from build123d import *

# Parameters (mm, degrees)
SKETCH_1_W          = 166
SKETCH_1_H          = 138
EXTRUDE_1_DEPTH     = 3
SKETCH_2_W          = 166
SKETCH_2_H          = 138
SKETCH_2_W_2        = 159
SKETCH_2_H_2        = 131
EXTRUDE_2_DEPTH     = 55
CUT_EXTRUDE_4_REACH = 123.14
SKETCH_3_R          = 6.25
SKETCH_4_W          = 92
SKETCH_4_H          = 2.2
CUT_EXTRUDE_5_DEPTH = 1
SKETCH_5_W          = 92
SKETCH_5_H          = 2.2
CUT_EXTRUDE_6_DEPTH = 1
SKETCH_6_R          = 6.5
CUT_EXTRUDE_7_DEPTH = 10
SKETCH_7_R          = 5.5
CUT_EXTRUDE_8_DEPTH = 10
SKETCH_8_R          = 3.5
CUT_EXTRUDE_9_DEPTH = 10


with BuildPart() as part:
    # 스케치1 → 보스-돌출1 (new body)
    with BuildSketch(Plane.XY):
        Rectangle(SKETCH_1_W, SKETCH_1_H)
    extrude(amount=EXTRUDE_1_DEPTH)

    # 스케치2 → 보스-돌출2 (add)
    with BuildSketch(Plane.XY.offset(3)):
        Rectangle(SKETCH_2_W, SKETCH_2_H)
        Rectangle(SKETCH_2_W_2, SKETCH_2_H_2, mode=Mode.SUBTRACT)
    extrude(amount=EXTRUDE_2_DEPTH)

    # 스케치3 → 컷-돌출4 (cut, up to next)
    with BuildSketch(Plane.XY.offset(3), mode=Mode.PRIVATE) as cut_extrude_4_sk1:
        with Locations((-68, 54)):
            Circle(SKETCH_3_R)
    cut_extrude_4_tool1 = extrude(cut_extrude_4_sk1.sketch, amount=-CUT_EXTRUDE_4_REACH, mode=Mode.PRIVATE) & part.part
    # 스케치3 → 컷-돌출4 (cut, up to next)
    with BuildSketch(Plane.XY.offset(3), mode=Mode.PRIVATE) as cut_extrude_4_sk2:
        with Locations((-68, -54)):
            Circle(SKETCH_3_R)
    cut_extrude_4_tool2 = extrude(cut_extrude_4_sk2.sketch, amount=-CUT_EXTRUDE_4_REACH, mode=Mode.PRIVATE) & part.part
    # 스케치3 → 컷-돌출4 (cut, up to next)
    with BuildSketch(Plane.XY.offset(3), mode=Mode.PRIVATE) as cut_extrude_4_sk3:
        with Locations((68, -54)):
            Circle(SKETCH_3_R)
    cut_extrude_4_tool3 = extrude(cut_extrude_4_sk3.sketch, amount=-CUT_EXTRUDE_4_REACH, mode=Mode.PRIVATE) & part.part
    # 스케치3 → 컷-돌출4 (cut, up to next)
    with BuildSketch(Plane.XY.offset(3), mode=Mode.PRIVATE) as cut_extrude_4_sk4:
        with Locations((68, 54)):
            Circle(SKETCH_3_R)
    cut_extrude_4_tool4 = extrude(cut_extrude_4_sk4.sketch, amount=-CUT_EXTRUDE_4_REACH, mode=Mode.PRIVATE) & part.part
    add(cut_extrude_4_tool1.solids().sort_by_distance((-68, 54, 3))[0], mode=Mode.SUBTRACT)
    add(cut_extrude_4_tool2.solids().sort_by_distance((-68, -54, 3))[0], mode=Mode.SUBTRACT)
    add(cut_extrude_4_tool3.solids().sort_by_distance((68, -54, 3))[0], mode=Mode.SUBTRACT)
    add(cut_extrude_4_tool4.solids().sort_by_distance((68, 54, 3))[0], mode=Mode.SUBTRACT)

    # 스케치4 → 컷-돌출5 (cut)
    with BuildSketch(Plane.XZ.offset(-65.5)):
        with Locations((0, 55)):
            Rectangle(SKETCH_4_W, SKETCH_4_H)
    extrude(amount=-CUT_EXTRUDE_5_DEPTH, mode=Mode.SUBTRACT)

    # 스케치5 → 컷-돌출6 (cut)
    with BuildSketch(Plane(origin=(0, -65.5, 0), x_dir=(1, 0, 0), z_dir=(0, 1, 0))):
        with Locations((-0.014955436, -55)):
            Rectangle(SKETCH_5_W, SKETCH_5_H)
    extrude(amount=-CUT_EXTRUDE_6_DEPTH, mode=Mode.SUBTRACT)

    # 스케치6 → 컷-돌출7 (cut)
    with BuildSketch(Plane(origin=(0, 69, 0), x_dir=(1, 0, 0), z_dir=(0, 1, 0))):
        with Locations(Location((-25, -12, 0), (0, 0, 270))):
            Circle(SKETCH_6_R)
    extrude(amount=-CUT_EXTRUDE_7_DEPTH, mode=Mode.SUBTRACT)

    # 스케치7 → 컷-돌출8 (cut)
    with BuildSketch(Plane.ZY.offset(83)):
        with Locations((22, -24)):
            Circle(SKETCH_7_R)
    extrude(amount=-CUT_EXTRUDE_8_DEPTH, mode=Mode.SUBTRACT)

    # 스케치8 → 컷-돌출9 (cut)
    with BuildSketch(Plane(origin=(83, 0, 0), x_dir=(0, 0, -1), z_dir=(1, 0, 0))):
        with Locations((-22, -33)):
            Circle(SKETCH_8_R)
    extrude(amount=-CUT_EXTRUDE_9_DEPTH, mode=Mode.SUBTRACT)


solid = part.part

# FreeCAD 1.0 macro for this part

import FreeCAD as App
import Part
import Sketcher

V = App.Vector


def add_polygon(sketch, points):
    """Adds a closed chain of lines whose ends are joined by coincident constraints."""
    first, n = sketch.GeometryCount, len(points)
    for a, b in zip(points, points[1:] + points[:1]):
        sketch.addGeometry(Part.LineSegment(App.Vector(*a, 0), App.Vector(*b, 0)), False)
    for i in range(n):
        sketch.addConstraint(Sketcher.Constraint("Coincident", first + i, 2, first + (i + 1) % n, 1))

doc = App.newDocument("Part")
params = doc.addObject("Spreadsheet::Sheet", "Params")
for row, (alias, value) in enumerate([
    ("sketch1_width", "166 mm"),
    ("sketch1_height", "138 mm"),
    ("pad1_length", "3 mm"),
    ("sketch2_width", "166 mm"),
    ("sketch2_width2", "159 mm"),
    ("sketch2_height", "138 mm"),
    ("sketch2_height2", "131 mm"),
    ("pad2_length", "55 mm"),
    ("sketch3_diameter", "12.5 mm"),
    ("sketch4_diameter", "12.5 mm"),
    ("sketch5_diameter", "12.5 mm"),
    ("sketch6_diameter", "12.5 mm"),
    ("sketch7_width", "92 mm"),
    ("sketch7_height", "2.2 mm"),
    ("pocket5_length", "1 mm"),
    ("sketch8_width", "92 mm"),
    ("sketch8_height", "2.2 mm"),
    ("pocket6_length", "1 mm"),
    ("sketch9_diameter", "13 mm"),
    ("pocket7_length", "10 mm"),
    ("sketch10_diameter", "11 mm"),
    ("pocket8_length", "10 mm"),
    ("sketch11_diameter", "7 mm"),
    ("pocket9_length", "10 mm"),
], start=1):
    params.set(f"A{row}", alias)
    params.set(f"B{row}", "=" + value)
    params.setAlias(f"B{row}", alias)

body = doc.addObject("PartDesign::Body", "Body")

sketch1 = doc.addObject("Sketcher::SketchObject", "Sketch")
body.addObject(sketch1)
sketch1.AttachmentSupport = (doc.XY_Plane, [""])
sketch1.MapMode = "FlatFace"
add_polygon(sketch1, [(-83, 69), (-83, -69), (83, -69), (83, 69)])
sketch1.addConstraint(Sketcher.Constraint("Vertical", 0))
sketch1.addConstraint(Sketcher.Constraint("Horizontal", 1))
sketch1.addConstraint(Sketcher.Constraint("Vertical", 2))
sketch1.addConstraint(Sketcher.Constraint("Horizontal", 3))
sketch1.addConstraint(Sketcher.Constraint("Symmetric", 0, 2, 2, 2, -1, 1))
sketch1.addConstraint(Sketcher.Constraint("DistanceX", 1, 1, 1, 2, 166.0))
sketch1.addConstraint(Sketcher.Constraint("DistanceY", 0, 2, 0, 1, 138.0))
sketch1.setExpression("Constraints[9]", "Params.sketch1_width")
sketch1.setExpression("Constraints[10]", "Params.sketch1_height")
pad1 = doc.addObject("PartDesign::Pad", "Pad")
body.addObject(pad1)
pad1.Profile = sketch1
pad1.setExpression("Length", "Params.pad1_length")

sketch2 = doc.addObject("Sketcher::SketchObject", "Sketch001")
body.addObject(sketch2)
sketch2.AttachmentSupport = (doc.XY_Plane, [""])
sketch2.MapMode = "FlatFace"
sketch2.AttachmentOffset = App.Placement(V(0, 0, 3), App.Rotation())
add_polygon(sketch2, [(-83, 69), (-83, -69), (83, -69), (83, 69)])
add_polygon(sketch2, [(80, -66), (-80, -66), (-80, 66), (80, 66)])
sketch2.addConstraint(Sketcher.Constraint("Vertical", 0))
sketch2.addConstraint(Sketcher.Constraint("Horizontal", 1))
sketch2.addConstraint(Sketcher.Constraint("Vertical", 2))
sketch2.addConstraint(Sketcher.Constraint("Horizontal", 3))
sketch2.addConstraint(Sketcher.Constraint("Horizontal", 4))
sketch2.addConstraint(Sketcher.Constraint("Vertical", 5))
sketch2.addConstraint(Sketcher.Constraint("Horizontal", 6))
sketch2.addConstraint(Sketcher.Constraint("Vertical", 7))
sketch2.addConstraint(Sketcher.Constraint("Symmetric", 0, 2, 2, 2, -1, 1))
sketch2.addConstraint(Sketcher.Constraint("Symmetric", 4, 2, 6, 2, -1, 1))
sketch2.addConstraint(Sketcher.Constraint("DistanceX", 1, 1, 1, 2, 166.0))
sketch2.addConstraint(Sketcher.Constraint("DistanceX", 4, 2, 4, 1, 159.0))
sketch2.addConstraint(Sketcher.Constraint("DistanceY", 0, 2, 0, 1, 138.0))
sketch2.addConstraint(Sketcher.Constraint("DistanceY", 5, 1, 5, 2, 131.0))
sketch2.setExpression("Constraints[18]", "Params.sketch2_width")
sketch2.setExpression("Constraints[19]", "Params.sketch2_width2")
sketch2.setExpression("Constraints[20]", "Params.sketch2_height")
sketch2.setExpression("Constraints[21]", "Params.sketch2_height2")
pad2 = doc.addObject("PartDesign::Pad", "Pad001")
body.addObject(pad2)
pad2.Profile = sketch2
pad2.setExpression("Length", "Params.pad2_length")

sketch3 = doc.addObject("Sketcher::SketchObject", "Sketch002")
body.addObject(sketch3)
sketch3.AttachmentSupport = (doc.XY_Plane, [""])
sketch3.MapMode = "FlatFace"
sketch3.AttachmentOffset = App.Placement(V(0, 0, 3), App.Rotation())
sketch3.addGeometry(Part.Circle(V(-68, 54, 0), V(0, 0, 1), 6), False)
sketch3.addConstraint(Sketcher.Constraint("Diameter", 0, 12.5))
sketch3.addConstraint(Sketcher.Constraint("DistanceX", 0, 3, -1, 1, 68.0))
sketch3.addConstraint(Sketcher.Constraint("DistanceY", -1, 1, 0, 3, 54.0))
sketch3.setExpression("Constraints[0]", "Params.sketch3_diameter")
pocket1 = doc.addObject("PartDesign::Pocket", "Pocket")
body.addObject(pocket1)
pocket1.Profile = sketch3
pocket1.Type = "UpToFirst"

sketch4 = doc.addObject("Sketcher::SketchObject", "Sketch003")
body.addObject(sketch4)
sketch4.AttachmentSupport = (doc.XY_Plane, [""])
sketch4.MapMode = "FlatFace"
sketch4.AttachmentOffset = App.Placement(V(0, 0, 3), App.Rotation())
sketch4.addGeometry(Part.Circle(V(-68, -54, 0), V(0, 0, 1), 6), False)
sketch4.addConstraint(Sketcher.Constraint("Diameter", 0, 12.5))
sketch4.addConstraint(Sketcher.Constraint("DistanceX", 0, 3, -1, 1, 68.0))
sketch4.addConstraint(Sketcher.Constraint("DistanceY", 0, 3, -1, 1, 54.0))
sketch4.setExpression("Constraints[0]", "Params.sketch4_diameter")
pocket2 = doc.addObject("PartDesign::Pocket", "Pocket001")
body.addObject(pocket2)
pocket2.Profile = sketch4
pocket2.Type = "UpToFirst"

sketch5 = doc.addObject("Sketcher::SketchObject", "Sketch004")
body.addObject(sketch5)
sketch5.AttachmentSupport = (doc.XY_Plane, [""])
sketch5.MapMode = "FlatFace"
sketch5.AttachmentOffset = App.Placement(V(0, 0, 3), App.Rotation())
sketch5.addGeometry(Part.Circle(V(68, -54, 0), V(0, 0, 1), 6), False)
sketch5.addConstraint(Sketcher.Constraint("Diameter", 0, 12.5))
sketch5.addConstraint(Sketcher.Constraint("DistanceX", -1, 1, 0, 3, 68.0))
sketch5.addConstraint(Sketcher.Constraint("DistanceY", 0, 3, -1, 1, 54.0))
sketch5.setExpression("Constraints[0]", "Params.sketch5_diameter")
pocket3 = doc.addObject("PartDesign::Pocket", "Pocket002")
body.addObject(pocket3)
pocket3.Profile = sketch5
pocket3.Type = "UpToFirst"

sketch6 = doc.addObject("Sketcher::SketchObject", "Sketch005")
body.addObject(sketch6)
sketch6.AttachmentSupport = (doc.XY_Plane, [""])
sketch6.MapMode = "FlatFace"
sketch6.AttachmentOffset = App.Placement(V(0, 0, 3), App.Rotation())
sketch6.addGeometry(Part.Circle(V(68, 54, 0), V(0, 0, 1), 6), False)
sketch6.addConstraint(Sketcher.Constraint("Diameter", 0, 12.5))
sketch6.addConstraint(Sketcher.Constraint("DistanceX", -1, 1, 0, 3, 68.0))
sketch6.addConstraint(Sketcher.Constraint("DistanceY", -1, 1, 0, 3, 54.0))
sketch6.setExpression("Constraints[0]", "Params.sketch6_diameter")
pocket4 = doc.addObject("PartDesign::Pocket", "Pocket003")
body.addObject(pocket4)
pocket4.Profile = sketch6
pocket4.Type = "UpToFirst"

sketch7 = doc.addObject("Sketcher::SketchObject", "Sketch006")
body.addObject(sketch7)
sketch7.AttachmentSupport = (doc.XZ_Plane, [""])
sketch7.MapMode = "FlatFace"
sketch7.AttachmentOffset = App.Placement(V(0, 0, -65.5), App.Rotation())
add_polygon(sketch7, [(-46, 56.1), (-46, 53.9), (46, 53.9), (46, 56.1)])
sketch7.addConstraint(Sketcher.Constraint("Vertical", 0))
sketch7.addConstraint(Sketcher.Constraint("Horizontal", 1))
sketch7.addConstraint(Sketcher.Constraint("Vertical", 2))
sketch7.addConstraint(Sketcher.Constraint("Horizontal", 3))
sketch7.addConstraint(Sketcher.Constraint("DistanceX", 1, 1, 1, 2, 92.0))
sketch7.addConstraint(Sketcher.Constraint("DistanceY", 0, 2, 0, 1, 2.2))
sketch7.addConstraint(Sketcher.Constraint("DistanceX", 0, 2, -1, 1, 46.0))
sketch7.addConstraint(Sketcher.Constraint("DistanceY", -1, 1, 0, 2, 53.9))
sketch7.setExpression("Constraints[8]", "Params.sketch7_width")
sketch7.setExpression("Constraints[9]", "Params.sketch7_height")
pocket5 = doc.addObject("PartDesign::Pocket", "Pocket004")
body.addObject(pocket5)
pocket5.Profile = sketch7
pocket5.setExpression("Length", "Params.pocket5_length")

sketch8 = doc.addObject("Sketcher::SketchObject", "Sketch007")
body.addObject(sketch8)
sketch8.AttachmentSupport = (doc.XZ_Plane, [""])
sketch8.MapMode = "FlatFace"
sketch8.AttachmentOffset = App.Placement(V(0, 0, 65.5), App.Rotation())
add_polygon(sketch8, [(-46, 53.9), (-46, 56.1), (46, 56.1), (46, 53.9)])
sketch8.addConstraint(Sketcher.Constraint("Vertical", 0))
sketch8.addConstraint(Sketcher.Constraint("Horizontal", 1))
sketch8.addConstraint(Sketcher.Constraint("Vertical", 2))
sketch8.addConstraint(Sketcher.Constraint("Horizontal", 3))
sketch8.addConstraint(Sketcher.Constraint("DistanceX", 1, 1, 1, 2, 92.0))
sketch8.addConstraint(Sketcher.Constraint("DistanceY", 0, 1, 0, 2, 2.2))
sketch8.addConstraint(Sketcher.Constraint("DistanceY", -1, 1, 0, 2, 56.1))
sketch8.addConstraint(Sketcher.Constraint("DistanceX", 0, 2, -1, 1, 46.014955))
sketch8.setExpression("Constraints[8]", "Params.sketch8_width")
sketch8.setExpression("Constraints[9]", "Params.sketch8_height")
pocket6 = doc.addObject("PartDesign::Pocket", "Pocket005")
body.addObject(pocket6)
pocket6.Profile = sketch8
pocket6.setExpression("Length", "Params.pocket6_length")
pocket6.Reversed = True

sketch9 = doc.addObject("Sketcher::SketchObject", "Sketch008")
body.addObject(sketch9)
sketch9.AttachmentSupport = (doc.XZ_Plane, [""])
sketch9.MapMode = "FlatFace"
sketch9.AttachmentOffset = App.Placement(V(0, 0, -69), App.Rotation())
sketch9.addGeometry(Part.Circle(V(-25, 12, 0), V(0, 0, 1), 6), False)
sketch9.addConstraint(Sketcher.Constraint("Diameter", 0, 13.0))
sketch9.addConstraint(Sketcher.Constraint("DistanceX", 0, 3, -1, 1, 25.0))
sketch9.addConstraint(Sketcher.Constraint("DistanceY", -1, 1, 0, 3, 12.0))
sketch9.setExpression("Constraints[0]", "Params.sketch9_diameter")
pocket7 = doc.addObject("PartDesign::Pocket", "Pocket006")
body.addObject(pocket7)
pocket7.Profile = sketch9
pocket7.setExpression("Length", "Params.pocket7_length")
pocket7.Reversed = True

sketch10 = doc.addObject("Sketcher::SketchObject", "Sketch009")
body.addObject(sketch10)
sketch10.AttachmentSupport = (doc.YZ_Plane, [""])
sketch10.MapMode = "FlatFace"
sketch10.AttachmentOffset = App.Placement(V(0, 0, -83), App.Rotation())
sketch10.addGeometry(Part.Circle(V(-24, 22, 0), V(0, 0, 1), 6), False)
sketch10.addConstraint(Sketcher.Constraint("Diameter", 0, 11.0))
sketch10.addConstraint(Sketcher.Constraint("DistanceX", 0, 3, -1, 1, 24.0))
sketch10.addConstraint(Sketcher.Constraint("DistanceY", -1, 1, 0, 3, 22.0))
sketch10.setExpression("Constraints[0]", "Params.sketch10_diameter")
pocket8 = doc.addObject("PartDesign::Pocket", "Pocket007")
body.addObject(pocket8)
pocket8.Profile = sketch10
pocket8.setExpression("Length", "Params.pocket8_length")
pocket8.Reversed = True

sketch11 = doc.addObject("Sketcher::SketchObject", "Sketch010")
body.addObject(sketch11)
sketch11.AttachmentSupport = (doc.YZ_Plane, [""])
sketch11.MapMode = "FlatFace"
sketch11.AttachmentOffset = App.Placement(V(0, 0, 83), App.Rotation())
sketch11.addGeometry(Part.Circle(V(-33, 22, 0), V(0, 0, 1), 3.5), False)
sketch11.addConstraint(Sketcher.Constraint("Diameter", 0, 7.0))
sketch11.addConstraint(Sketcher.Constraint("DistanceX", 0, 3, -1, 1, 33.0))
sketch11.addConstraint(Sketcher.Constraint("DistanceY", -1, 1, 0, 3, 22.0))
sketch11.setExpression("Constraints[0]", "Params.sketch11_diameter")
pocket9 = doc.addObject("PartDesign::Pocket", "Pocket008")
body.addObject(pocket9)
pocket9.Profile = sketch11
pocket9.setExpression("Length", "Params.pocket9_length")

doc.recompute()
